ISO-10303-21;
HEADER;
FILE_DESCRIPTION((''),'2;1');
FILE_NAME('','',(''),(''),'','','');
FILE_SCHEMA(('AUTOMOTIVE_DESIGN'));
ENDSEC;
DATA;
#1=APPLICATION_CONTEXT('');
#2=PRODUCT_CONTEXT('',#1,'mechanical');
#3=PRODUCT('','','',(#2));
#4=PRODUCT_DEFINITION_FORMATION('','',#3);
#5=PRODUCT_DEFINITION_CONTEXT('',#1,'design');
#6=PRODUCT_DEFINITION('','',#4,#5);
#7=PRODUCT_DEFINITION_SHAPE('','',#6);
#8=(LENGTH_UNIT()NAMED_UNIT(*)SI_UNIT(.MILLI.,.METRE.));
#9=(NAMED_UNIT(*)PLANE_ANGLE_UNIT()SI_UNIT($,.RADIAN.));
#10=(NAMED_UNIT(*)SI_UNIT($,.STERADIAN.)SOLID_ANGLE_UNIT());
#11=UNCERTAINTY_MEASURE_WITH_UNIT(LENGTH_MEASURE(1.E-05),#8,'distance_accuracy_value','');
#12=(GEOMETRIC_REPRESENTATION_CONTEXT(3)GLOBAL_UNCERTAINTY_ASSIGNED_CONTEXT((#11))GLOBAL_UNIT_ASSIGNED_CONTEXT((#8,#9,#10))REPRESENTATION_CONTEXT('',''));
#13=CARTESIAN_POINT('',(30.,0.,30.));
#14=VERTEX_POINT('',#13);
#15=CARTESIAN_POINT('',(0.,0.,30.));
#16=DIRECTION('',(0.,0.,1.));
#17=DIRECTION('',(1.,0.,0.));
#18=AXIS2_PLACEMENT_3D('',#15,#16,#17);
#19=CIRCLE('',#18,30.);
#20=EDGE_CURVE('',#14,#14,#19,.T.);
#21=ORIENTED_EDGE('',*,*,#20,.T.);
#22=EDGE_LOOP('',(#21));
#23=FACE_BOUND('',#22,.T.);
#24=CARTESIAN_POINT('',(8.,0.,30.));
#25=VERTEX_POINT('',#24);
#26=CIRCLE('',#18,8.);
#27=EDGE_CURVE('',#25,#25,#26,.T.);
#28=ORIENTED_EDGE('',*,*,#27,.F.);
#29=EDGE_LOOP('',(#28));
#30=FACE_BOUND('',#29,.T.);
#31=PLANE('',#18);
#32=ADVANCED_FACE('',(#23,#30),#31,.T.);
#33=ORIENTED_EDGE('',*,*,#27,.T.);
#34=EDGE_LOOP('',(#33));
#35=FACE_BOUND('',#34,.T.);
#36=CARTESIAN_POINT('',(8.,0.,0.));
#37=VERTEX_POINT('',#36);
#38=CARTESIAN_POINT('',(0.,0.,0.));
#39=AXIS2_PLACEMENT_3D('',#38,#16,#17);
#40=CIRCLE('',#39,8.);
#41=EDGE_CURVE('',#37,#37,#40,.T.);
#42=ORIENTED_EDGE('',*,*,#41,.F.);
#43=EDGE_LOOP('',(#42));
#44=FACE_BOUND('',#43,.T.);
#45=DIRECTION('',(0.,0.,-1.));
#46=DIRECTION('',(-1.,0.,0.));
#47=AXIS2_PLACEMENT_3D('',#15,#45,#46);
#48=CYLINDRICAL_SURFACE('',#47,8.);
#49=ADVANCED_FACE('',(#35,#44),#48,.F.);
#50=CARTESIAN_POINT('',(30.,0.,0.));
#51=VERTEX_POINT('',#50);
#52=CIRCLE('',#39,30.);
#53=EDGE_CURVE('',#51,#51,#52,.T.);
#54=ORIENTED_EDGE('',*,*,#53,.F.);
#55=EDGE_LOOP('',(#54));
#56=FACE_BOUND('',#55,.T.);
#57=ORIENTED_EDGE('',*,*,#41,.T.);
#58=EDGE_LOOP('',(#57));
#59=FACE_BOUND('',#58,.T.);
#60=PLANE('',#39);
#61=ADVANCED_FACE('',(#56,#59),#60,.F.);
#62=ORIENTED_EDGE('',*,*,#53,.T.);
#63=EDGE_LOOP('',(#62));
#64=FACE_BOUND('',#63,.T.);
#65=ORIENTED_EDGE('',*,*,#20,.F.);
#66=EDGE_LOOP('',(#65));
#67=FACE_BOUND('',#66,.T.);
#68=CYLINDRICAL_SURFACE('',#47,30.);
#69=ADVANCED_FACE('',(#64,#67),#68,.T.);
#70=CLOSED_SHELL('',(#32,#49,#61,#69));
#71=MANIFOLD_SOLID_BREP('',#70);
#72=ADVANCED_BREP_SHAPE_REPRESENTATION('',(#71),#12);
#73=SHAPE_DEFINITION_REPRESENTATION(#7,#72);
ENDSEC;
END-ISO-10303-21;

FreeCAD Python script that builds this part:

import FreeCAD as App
import Part
import Sketcher
Q = App.Units.Quantity

doc = App.newDocument("Part")
body = doc.addObject("PartDesign::Body", "Body")

sketch1 = body.newObject("Sketcher::SketchObject", "Sketch")
sketch1.AttachmentSupport = (doc.getObject("XY_Plane"), [""])
sketch1.MapMode = "FlatFace"
sketch1.addGeometry(Part.Circle(App.Vector(0, 0, 0), App.Vector(0, 0, 1), 30), False)
sketch1.addGeometry(Part.Circle(App.Vector(0, 0, 0), App.Vector(0, 0, 1), 8), False)
sketch1.addConstraint(Sketcher.Constraint("Coincident", 0, 3, -1, 1))
sketch1.addConstraint(Sketcher.Constraint("Coincident", 1, 3, -1, 1))
sketch1.addConstraint(Sketcher.Constraint("Diameter", 0, Q("60 mm")))
sketch1.addConstraint(Sketcher.Constraint("Diameter", 1, Q("16 mm")))
pad1 = body.newObject("PartDesign::Pad", "Pad")
pad1.Profile = sketch1
pad1.Length = 30

doc.recompute()
